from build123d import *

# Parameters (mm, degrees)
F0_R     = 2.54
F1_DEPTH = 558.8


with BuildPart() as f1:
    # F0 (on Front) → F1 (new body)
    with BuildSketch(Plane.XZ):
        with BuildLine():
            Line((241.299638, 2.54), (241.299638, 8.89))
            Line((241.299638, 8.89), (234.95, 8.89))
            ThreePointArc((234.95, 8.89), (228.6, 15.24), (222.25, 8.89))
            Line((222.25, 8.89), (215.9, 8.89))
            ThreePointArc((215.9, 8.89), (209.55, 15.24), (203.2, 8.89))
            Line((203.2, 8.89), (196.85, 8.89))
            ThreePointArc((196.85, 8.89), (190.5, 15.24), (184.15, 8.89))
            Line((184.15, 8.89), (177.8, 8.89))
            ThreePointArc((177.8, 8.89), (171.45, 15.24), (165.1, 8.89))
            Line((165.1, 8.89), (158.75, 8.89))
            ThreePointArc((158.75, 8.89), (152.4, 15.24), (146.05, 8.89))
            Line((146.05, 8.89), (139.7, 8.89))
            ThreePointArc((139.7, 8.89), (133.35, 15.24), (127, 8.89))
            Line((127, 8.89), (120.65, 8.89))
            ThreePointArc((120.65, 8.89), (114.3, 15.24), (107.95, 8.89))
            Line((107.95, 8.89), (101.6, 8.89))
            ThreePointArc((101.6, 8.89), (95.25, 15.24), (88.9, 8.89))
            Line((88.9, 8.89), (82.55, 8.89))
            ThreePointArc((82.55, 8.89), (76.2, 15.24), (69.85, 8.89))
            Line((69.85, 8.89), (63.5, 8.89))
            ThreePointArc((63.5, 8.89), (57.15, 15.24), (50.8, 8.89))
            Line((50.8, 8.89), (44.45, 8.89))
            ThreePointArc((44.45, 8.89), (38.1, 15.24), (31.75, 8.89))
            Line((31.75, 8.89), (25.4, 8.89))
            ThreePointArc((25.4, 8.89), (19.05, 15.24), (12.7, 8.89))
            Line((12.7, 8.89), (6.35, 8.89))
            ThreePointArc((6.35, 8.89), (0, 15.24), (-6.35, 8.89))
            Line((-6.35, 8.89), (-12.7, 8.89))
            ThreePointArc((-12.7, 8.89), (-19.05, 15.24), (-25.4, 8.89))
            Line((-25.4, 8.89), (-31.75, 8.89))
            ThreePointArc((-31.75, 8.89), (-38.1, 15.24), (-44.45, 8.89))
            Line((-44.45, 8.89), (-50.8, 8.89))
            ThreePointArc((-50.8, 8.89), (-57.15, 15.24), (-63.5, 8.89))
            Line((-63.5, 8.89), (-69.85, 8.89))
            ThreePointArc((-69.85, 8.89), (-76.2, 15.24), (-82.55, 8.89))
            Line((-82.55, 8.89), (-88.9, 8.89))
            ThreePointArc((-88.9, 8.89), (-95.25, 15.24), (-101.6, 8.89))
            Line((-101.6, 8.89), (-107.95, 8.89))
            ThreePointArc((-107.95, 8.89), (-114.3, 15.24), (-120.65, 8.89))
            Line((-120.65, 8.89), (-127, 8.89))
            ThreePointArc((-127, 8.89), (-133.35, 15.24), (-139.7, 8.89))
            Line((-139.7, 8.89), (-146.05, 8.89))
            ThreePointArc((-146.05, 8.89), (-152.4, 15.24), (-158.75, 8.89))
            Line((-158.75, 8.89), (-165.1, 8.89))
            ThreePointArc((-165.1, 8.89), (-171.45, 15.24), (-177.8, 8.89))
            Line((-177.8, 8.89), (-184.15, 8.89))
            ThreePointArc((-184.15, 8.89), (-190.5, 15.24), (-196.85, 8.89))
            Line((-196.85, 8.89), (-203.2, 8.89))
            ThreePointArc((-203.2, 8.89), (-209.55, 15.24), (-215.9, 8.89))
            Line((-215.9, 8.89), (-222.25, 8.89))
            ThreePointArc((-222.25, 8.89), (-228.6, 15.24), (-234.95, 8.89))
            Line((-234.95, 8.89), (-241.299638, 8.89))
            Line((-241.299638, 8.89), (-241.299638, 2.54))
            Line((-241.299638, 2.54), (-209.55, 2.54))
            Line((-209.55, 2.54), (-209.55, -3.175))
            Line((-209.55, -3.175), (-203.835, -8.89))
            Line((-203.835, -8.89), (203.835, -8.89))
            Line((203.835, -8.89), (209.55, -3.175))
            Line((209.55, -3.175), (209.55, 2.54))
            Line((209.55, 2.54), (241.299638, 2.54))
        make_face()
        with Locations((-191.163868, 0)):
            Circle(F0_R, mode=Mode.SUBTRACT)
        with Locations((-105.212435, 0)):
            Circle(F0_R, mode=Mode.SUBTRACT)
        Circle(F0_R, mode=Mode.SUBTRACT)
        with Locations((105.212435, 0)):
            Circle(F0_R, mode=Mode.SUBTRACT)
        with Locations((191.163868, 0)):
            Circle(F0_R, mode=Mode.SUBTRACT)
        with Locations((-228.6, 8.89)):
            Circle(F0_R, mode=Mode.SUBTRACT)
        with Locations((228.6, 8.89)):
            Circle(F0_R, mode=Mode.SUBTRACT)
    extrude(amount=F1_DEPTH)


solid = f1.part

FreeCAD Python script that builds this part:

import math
import FreeCAD as App
import Part
import Sketcher

V = App.Vector
Q = App.Units.Quantity

doc = App.newDocument("Part")
body = doc.addObject("PartDesign::Body", "Body")

sketch1 = body.newObject("Sketcher::SketchObject", "Sketch")
sketch1.AttachmentSupport = (doc.getObject("XZ_Plane"), [""])
sketch1.MapMode = "FlatFace"
sketch1.addGeometry([
    Part.LineSegment(V(241.3, 2.5, 0), V(241.3, 8.9, 0)),
    Part.LineSegment(V(241.3, 8.9, 0), V(234.9, 8.9, 0)),
    Part.ArcOfCircle(Part.Circle(V(228.6, 8.9, 0), V(0, 0, 1), 6.3), math.radians(0), math.radians(180)),
    Part.LineSegment(V(222.2, 8.9, 0), V(215.9, 8.9, 0)),
    Part.ArcOfCircle(Part.Circle(V(209.6, 8.9, 0), V(0, 0, 1), 6.3), math.radians(0), math.radians(180)),
    Part.LineSegment(V(203.2, 8.9, 0), V(196.8, 8.9, 0)),
    Part.ArcOfCircle(Part.Circle(V(190.5, 8.9, 0), V(0, 0, 1), 6.3), math.radians(0), math.radians(180)),
    Part.LineSegment(V(184.2, 8.9, 0), V(177.8, 8.9, 0)),
    Part.ArcOfCircle(Part.Circle(V(171.4, 8.9, 0), V(0, 0, 1), 6.3), math.radians(0), math.radians(180)),
    Part.LineSegment(V(165.1, 8.9, 0), V(158.8, 8.9, 0)),
    Part.ArcOfCircle(Part.Circle(V(152.4, 8.9, 0), V(0, 0, 1), 6.3), math.radians(0), math.radians(180)),
    Part.LineSegment(V(146.1, 8.9, 0), V(139.7, 8.9, 0)),
    Part.ArcOfCircle(Part.Circle(V(133.3, 8.9, 0), V(0, 0, 1), 6.3), math.radians(0), math.radians(180)),
    Part.LineSegment(V(127, 8.9, 0), V(120.7, 8.9, 0)),
    Part.ArcOfCircle(Part.Circle(V(114.3, 8.9, 0), V(0, 0, 1), 6.3), math.radians(0), math.radians(180)),
    Part.LineSegment(V(108, 8.9, 0), V(101.6, 8.9, 0)),
    Part.ArcOfCircle(Part.Circle(V(95.2, 8.9, 0), V(0, 0, 1), 6.3), math.radians(0), math.radians(180)),
    Part.LineSegment(V(88.9, 8.9, 0), V(82.5, 8.9, 0)),
    Part.ArcOfCircle(Part.Circle(V(76.2, 8.9, 0), V(0, 0, 1), 6.3), math.radians(0), math.radians(180)),
    Part.LineSegment(V(69.8, 8.9, 0), V(63.5, 8.9, 0)),
    Part.ArcOfCircle(Part.Circle(V(57.1, 8.9, 0), V(0, 0, 1), 6.3), math.radians(0), math.radians(180)),
    Part.LineSegment(V(50.8, 8.9, 0), V(44.5, 8.9, 0)),
    Part.ArcOfCircle(Part.Circle(V(38.1, 8.9, 0), V(0, 0, 1), 6.3), math.radians(0), math.radians(180)),
    Part.LineSegment(V(31.8, 8.9, 0), V(25.4, 8.9, 0)),
    Part.ArcOfCircle(Part.Circle(V(19.1, 8.9, 0), V(0, 0, 1), 6.3), math.radians(0), math.radians(180)),
    Part.LineSegment(V(12.7, 8.9, 0), V(6.3, 8.9, 0)),
    Part.ArcOfCircle(Part.Circle(V(0, 8.9, 0), V(0, 0, 1), 6.3), math.radians(0), math.radians(180)),
    Part.LineSegment(V(-6.3, 8.9, 0), V(-12.7, 8.9, 0)),
    Part.ArcOfCircle(Part.Circle(V(-19.1, 8.9, 0), V(0, 0, 1), 6.3), math.radians(0), math.radians(180)),
    Part.LineSegment(V(-25.4, 8.9, 0), V(-31.8, 8.9, 0)),
    Part.ArcOfCircle(Part.Circle(V(-38.1, 8.9, 0), V(0, 0, 1), 6.3), math.radians(0), math.radians(180)),
    Part.LineSegment(V(-44.5, 8.9, 0), V(-50.8, 8.9, 0)),
    Part.ArcOfCircle(Part.Circle(V(-57.1, 8.9, 0), V(0, 0, 1), 6.3), math.radians(0), math.radians(180)),
    Part.LineSegment(V(-63.5, 8.9, 0), V(-69.8, 8.9, 0)),
    Part.ArcOfCircle(Part.Circle(V(-76.2, 8.9, 0), V(0, 0, 1), 6.3), math.radians(0), math.radians(180)),
    Part.LineSegment(V(-82.5, 8.9, 0), V(-88.9, 8.9, 0)),
    Part.ArcOfCircle(Part.Circle(V(-95.2, 8.9, 0), V(0, 0, 1), 6.3), math.radians(0), math.radians(180)),
    Part.LineSegment(V(-101.6, 8.9, 0), V(-108, 8.9, 0)),
    Part.ArcOfCircle(Part.Circle(V(-114.3, 8.9, 0), V(0, 0, 1), 6.3), math.radians(0), math.radians(180)),
    Part.LineSegment(V(-120.7, 8.9, 0), V(-127, 8.9, 0)),
    Part.ArcOfCircle(Part.Circle(V(-133.3, 8.9, 0), V(0, 0, 1), 6.3), math.radians(0), math.radians(180)),
    Part.LineSegment(V(-139.7, 8.9, 0), V(-146.1, 8.9, 0)),
    Part.ArcOfCircle(Part.Circle(V(-152.4, 8.9, 0), V(0, 0, 1), 6.3), math.radians(0), math.radians(180)),
    Part.LineSegment(V(-158.8, 8.9, 0), V(-165.1, 8.9, 0)),
    Part.ArcOfCircle(Part.Circle(V(-171.4, 8.9, 0), V(0, 0, 1), 6.3), math.radians(0), math.radians(180)),
    Part.LineSegment(V(-177.8, 8.9, 0), V(-184.2, 8.9, 0)),
    Part.ArcOfCircle(Part.Circle(V(-190.5, 8.9, 0), V(0, 0, 1), 6.3), math.radians(0), math.radians(180)),
    Part.LineSegment(V(-196.8, 8.9, 0), V(-203.2, 8.9, 0)),
    Part.ArcOfCircle(Part.Circle(V(-209.6, 8.9, 0), V(0, 0, 1), 6.3), math.radians(0), math.radians(180)),
    Part.LineSegment(V(-215.9, 8.9, 0), V(-222.2, 8.9, 0)),
    Part.ArcOfCircle(Part.Circle(V(-228.6, 8.9, 0), V(0, 0, 1), 6.3), math.radians(0), math.radians(180)),
    Part.LineSegment(V(-234.9, 8.9, 0), V(-241.3, 8.9, 0)),
    Part.LineSegment(V(-241.3, 8.9, 0), V(-241.3, 2.5, 0)),
    Part.LineSegment(V(-241.3, 2.5, 0), V(-209.6, 2.5, 0)),
    Part.LineSegment(V(-209.6, 2.5, 0), V(-209.6, -3.2, 0)),
    Part.LineSegment(V(-209.6, -3.2, 0), V(-203.8, -8.9, 0)),
    Part.LineSegment(V(-203.8, -8.9, 0), V(203.8, -8.9, 0)),
    Part.LineSegment(V(203.8, -8.9, 0), V(209.6, -3.2, 0)),
    Part.LineSegment(V(209.6, -3.2, 0), V(209.6, 2.5, 0)),
    Part.LineSegment(V(209.6, 2.5, 0), V(241.3, 2.5, 0)),
    Part.Circle(V(-191.2, 0, 0), V(0, 0, 1), 2.5),
    Part.Circle(V(-105.2, 0, 0), V(0, 0, 1), 2.5),
    Part.Circle(V(0, 0, 0), V(0, 0, 1), 2.5),
    Part.Circle(V(105.2, 0, 0), V(0, 0, 1), 2.5),
    Part.Circle(V(191.2, 0, 0), V(0, 0, 1), 2.5),
    Part.Circle(V(-228.6, 8.9, 0), V(0, 0, 1), 2.5),
    Part.Circle(V(228.6, 8.9, 0), V(0, 0, 1), 2.5),
], False)
sketch1.addConstraint([
    Sketcher.Constraint("Coincident", 0, 2, 1, 1),
    Sketcher.Constraint("Coincident", 1, 2, 2, 1),
    Sketcher.Constraint("Coincident", 2, 2, 3, 1),
    Sketcher.Constraint("Coincident", 3, 2, 4, 1),
    Sketcher.Constraint("Coincident", 4, 2, 5, 1),
    Sketcher.Constraint("Coincident", 5, 2, 6, 1),
    Sketcher.Constraint("Coincident", 6, 2, 7, 1),
    Sketcher.Constraint("Coincident", 7, 2, 8, 1),
    Sketcher.Constraint("Coincident", 8, 2, 9, 1),
    Sketcher.Constraint("Coincident", 9, 2, 10, 1),
    Sketcher.Constraint("Coincident", 10, 2, 11, 1),
    Sketcher.Constraint("Coincident", 11, 2, 12, 1),
    Sketcher.Constraint("Coincident", 12, 2, 13, 1),
    Sketcher.Constraint("Coincident", 13, 2, 14, 1),
    Sketcher.Constraint("Coincident", 14, 2, 15, 1),
    Sketcher.Constraint("Coincident", 15, 2, 16, 1),
    Sketcher.Constraint("Coincident", 16, 2, 17, 1),
    Sketcher.Constraint("Coincident", 17, 2, 18, 1),
    Sketcher.Constraint("Coincident", 18, 2, 19, 1),
    Sketcher.Constraint("Coincident", 19, 2, 20, 1),
    Sketcher.Constraint("Coincident", 20, 2, 21, 1),
    Sketcher.Constraint("Coincident", 21, 2, 22, 1),
    Sketcher.Constraint("Coincident", 22, 2, 23, 1),
    Sketcher.Constraint("Coincident", 23, 2, 24, 1),
    Sketcher.Constraint("Coincident", 24, 2, 25, 1),
    Sketcher.Constraint("Coincident", 25, 2, 26, 1),
    Sketcher.Constraint("Coincident", 26, 2, 27, 1),
    Sketcher.Constraint("Coincident", 27, 2, 28, 1),
    Sketcher.Constraint("Coincident", 28, 2, 29, 1),
    Sketcher.Constraint("Coincident", 29, 2, 30, 1),
    Sketcher.Constraint("Coincident", 30, 2, 31, 1),
    Sketcher.Constraint("Coincident", 31, 2, 32, 1),
    Sketcher.Constraint("Coincident", 32, 2, 33, 1),
    Sketcher.Constraint("Coincident", 33, 2, 34, 1),
    Sketcher.Constraint("Coincident", 34, 2, 35, 1),
    Sketcher.Constraint("Coincident", 35, 2, 36, 1),
    Sketcher.Constraint("Coincident", 36, 2, 37, 1),
    Sketcher.Constraint("Coincident", 37, 2, 38, 1),
    Sketcher.Constraint("Coincident", 38, 2, 39, 1),
    Sketcher.Constraint("Coincident", 39, 2, 40, 1),
    Sketcher.Constraint("Coincident", 40, 2, 41, 1),
    Sketcher.Constraint("Coincident", 41, 2, 42, 1),
    Sketcher.Constraint("Coincident", 42, 2, 43, 1),
    Sketcher.Constraint("Coincident", 43, 2, 44, 1),
    Sketcher.Constraint("Coincident", 44, 2, 45, 1),
    Sketcher.Constraint("Coincident", 45, 2, 46, 1),
    Sketcher.Constraint("Coincident", 46, 2, 47, 1),
    Sketcher.Constraint("Coincident", 47, 2, 48, 1),
    Sketcher.Constraint("Coincident", 48, 2, 49, 1),
    Sketcher.Constraint("Coincident", 49, 2, 50, 1),
    Sketcher.Constraint("Coincident", 50, 2, 51, 1),
    Sketcher.Constraint("Coincident", 51, 2, 52, 1),
    Sketcher.Constraint("Coincident", 52, 2, 53, 1),
    Sketcher.Constraint("Coincident", 53, 2, 54, 1),
    Sketcher.Constraint("Coincident", 54, 2, 55, 1),
    Sketcher.Constraint("Coincident", 55, 2, 56, 1),
    Sketcher.Constraint("Coincident", 56, 2, 57, 1),
    Sketcher.Constraint("Coincident", 57, 2, 58, 1),
    Sketcher.Constraint("Coincident", 58, 2, 59, 1),
    Sketcher.Constraint("Coincident", 59, 2, 0, 1),
    Sketcher.Constraint("Vertical", 0),
    Sketcher.Constraint("Horizontal", 1),
    Sketcher.Constraint("Horizontal", 3),
    Sketcher.Constraint("Horizontal", 5),
    Sketcher.Constraint("Horizontal", 7),
    Sketcher.Constraint("Horizontal", 9),
    Sketcher.Constraint("Horizontal", 11),
    Sketcher.Constraint("Horizontal", 13),
    Sketcher.Constraint("Horizontal", 15),
    Sketcher.Constraint("Horizontal", 17),
    Sketcher.Constraint("Horizontal", 19),
    Sketcher.Constraint("Horizontal", 21),
    Sketcher.Constraint("Horizontal", 23),
    Sketcher.Constraint("Horizontal", 25),
    Sketcher.Constraint("Horizontal", 27),
    Sketcher.Constraint("Horizontal", 29),
    Sketcher.Constraint("Horizontal", 31),
    Sketcher.Constraint("Horizontal", 33),
    Sketcher.Constraint("Horizontal", 35),
    Sketcher.Constraint("Horizontal", 37),
    Sketcher.Constraint("Horizontal", 39),
    Sketcher.Constraint("Horizontal", 41),
    Sketcher.Constraint("Horizontal", 43),
    Sketcher.Constraint("Horizontal", 45),
    Sketcher.Constraint("Horizontal", 47),
    Sketcher.Constraint("Horizontal", 49),
    Sketcher.Constraint("Horizontal", 51),
    Sketcher.Constraint("Vertical", 52),
    Sketcher.Constraint("Horizontal", 53),
    Sketcher.Constraint("Vertical", 54),
    Sketcher.Constraint("Horizontal", 56),
    Sketcher.Constraint("Vertical", 58),
    Sketcher.Constraint("Horizontal", 59),
    Sketcher.Constraint("Coincident", 62, 3, -1, 1),
    Sketcher.Constraint("Coincident", 65, 3, 50, 3),
    Sketcher.Constraint("Coincident", 66, 3, 2, 3),
    Sketcher.Constraint("Equal", 2, 4),
    Sketcher.Constraint("Equal", 4, 6),
    Sketcher.Constraint("Equal", 6, 8),
    Sketcher.Constraint("Equal", 8, 10),
    Sketcher.Constraint("Equal", 10, 12),
    Sketcher.Constraint("Equal", 12, 14),
    Sketcher.Constraint("Equal", 14, 16),
    Sketcher.Constraint("Equal", 16, 18),
    Sketcher.Constraint("Equal", 18, 20),
    Sketcher.Constraint("Equal", 20, 22),
    Sketcher.Constraint("Equal", 22, 24),
    Sketcher.Constraint("Equal", 24, 26),
    Sketcher.Constraint("Equal", 26, 28),
    Sketcher.Constraint("Equal", 28, 30),
    Sketcher.Constraint("Equal", 30, 32),
    Sketcher.Constraint("Equal", 32, 34),
    Sketcher.Constraint("Equal", 34, 36),
    Sketcher.Constraint("Equal", 36, 38),
    Sketcher.Constraint("Equal", 38, 40),
    Sketcher.Constraint("Equal", 40, 42),
    Sketcher.Constraint("Equal", 42, 44),
    Sketcher.Constraint("Equal", 44, 46),
    Sketcher.Constraint("Equal", 46, 48),
    Sketcher.Constraint("Equal", 48, 50),
    Sketcher.Constraint("Equal", 60, 61),
    Sketcher.Constraint("Equal", 61, 62),
    Sketcher.Constraint("Equal", 62, 63),
    Sketcher.Constraint("Equal", 63, 64),
    Sketcher.Constraint("Equal", 64, 65),
    Sketcher.Constraint("Equal", 65, 66),
    Sketcher.Constraint("Symmetric", 61, 3, 63, 3, -1, 1),
    Sketcher.Constraint("Symmetric", 60, 3, 64, 3, -1, 1),
    Sketcher.Constraint("Symmetric", 24, 3, 28, 3, -2),
    Sketcher.Constraint("Symmetric", 22, 3, 30, 3, -2),
    Sketcher.Constraint("Symmetric", 20, 3, 32, 3, -2),
    Sketcher.Constraint("Symmetric", 18, 3, 34, 3, -2),
    Sketcher.Constraint("Symmetric", 16, 3, 36, 3, -2),
    Sketcher.Constraint("Symmetric", 14, 3, 38, 3, -2),
    Sketcher.Constraint("Symmetric", 12, 3, 40, 3, -2),
    Sketcher.Constraint("Symmetric", 10, 3, 42, 3, -2),
    Sketcher.Constraint("Symmetric", 8, 3, 44, 3, -2),
    Sketcher.Constraint("Symmetric", 6, 3, 46, 3, -2),
    Sketcher.Constraint("Symmetric", 4, 3, 48, 3, -2),
    Sketcher.Constraint("Symmetric", 2, 3, 50, 3, -2),
    Sketcher.Constraint("Symmetric", 25, 2, 26, 2, -2),
    Sketcher.Constraint("Symmetric", 0, 2, 51, 2, -2),
    Sketcher.Constraint("Symmetric", 54, 2, 57, 2, -2),
    Sketcher.Constraint("PointOnObject", 60, 3, -1),
    Sketcher.Constraint("PointOnObject", 61, 3, -1),
    Sketcher.Constraint("Perpendicular", 55, 57),
    Sketcher.Constraint("Horizontal", 2, 3, 4, 3),
    Sketcher.Constraint("Horizontal", 4, 3, 6, 3),
    Sketcher.Constraint("Horizontal", 6, 3, 8, 3),
    Sketcher.Constraint("Horizontal", 8, 3, 10, 3),
    Sketcher.Constraint("Horizontal", 10, 3, 12, 3),
    Sketcher.Constraint("Horizontal", 12, 3, 14, 3),
    Sketcher.Constraint("Horizontal", 14, 3, 16, 3),
    Sketcher.Constraint("Horizontal", 16, 3, 18, 3),
    Sketcher.Constraint("Horizontal", 18, 3, 20, 3),
    Sketcher.Constraint("Horizontal", 20, 3, 22, 3),
    Sketcher.Constraint("Horizontal", 22, 3, 24, 3),
    Sketcher.Constraint("Horizontal", 24, 3, 26, 3),
    Sketcher.Constraint("Horizontal", 66, 3, 0, 2),
    Sketcher.Constraint("Horizontal", 1, 2, 2, 2),
    Sketcher.Constraint("Horizontal", 3, 2, 4, 2),
    Sketcher.Constraint("Horizontal", 5, 2, 6, 2),
    Sketcher.Constraint("Horizontal", 7, 2, 8, 2),
    Sketcher.Constraint("Horizontal", 9, 2, 10, 2),
    Sketcher.Constraint("Horizontal", 11, 2, 12, 2),
    Sketcher.Constraint("Horizontal", 13, 2, 14, 2),
    Sketcher.Constraint("Horizontal", 15, 2, 16, 2),
    Sketcher.Constraint("Horizontal", 17, 2, 18, 2),
    Sketcher.Constraint("Horizontal", 19, 2, 20, 2),
    Sketcher.Constraint("Horizontal", 21, 2, 22, 2),
    Sketcher.Constraint("Horizontal", 23, 2, 24, 2),
    Sketcher.Constraint("Horizontal", 27, 2, 28, 2),
    Sketcher.Constraint("Horizontal", 29, 2, 30, 2),
    Sketcher.Constraint("Horizontal", 31, 2, 32, 2),
    Sketcher.Constraint("Horizontal", 33, 2, 34, 2),
    Sketcher.Constraint("Horizontal", 35, 2, 36, 2),
    Sketcher.Constraint("Horizontal", 37, 2, 38, 2),
    Sketcher.Constraint("Horizontal", 39, 2, 40, 2),
    Sketcher.Constraint("Horizontal", 41, 2, 42, 2),
    Sketcher.Constraint("Horizontal", 43, 2, 44, 2),
    Sketcher.Constraint("Horizontal", 45, 2, 46, 2),
    Sketcher.Constraint("Horizontal", 47, 2, 48, 2),
    Sketcher.Constraint("Horizontal", 53, 2, 58, 2),
    Sketcher.Constraint("Vertical", 48, 3, 53, 2),
    Sketcher.Constraint("Equal", 3, 5),
    Sketcher.Constraint("Equal", 5, 7),
    Sketcher.Constraint("Equal", 7, 9),
    Sketcher.Constraint("Equal", 9, 11),
    Sketcher.Constraint("Equal", 11, 13),
    Sketcher.Constraint("Equal", 13, 15),
    Sketcher.Constraint("Equal", 15, 17),
    Sketcher.Constraint("Equal", 17, 19),
    Sketcher.Constraint("Equal", 19, 21),
    Sketcher.Constraint("Equal", 21, 23),
    Sketcher.Constraint("Equal", 23, 25),
    Sketcher.Constraint("Equal", 49, 0),
    Sketcher.Constraint("Equal", 55, 57),
    Sketcher.Constraint("Diameter", 60, Q("0.2 in")),
    Sketcher.Constraint("Radius", 2, Q("0.25 in")),
    Sketcher.Constraint("DistanceX", -1, 1, 2, 3, Q("9 in")),
    Sketcher.Constraint("DistanceX", 56, 1, 56, 2, Q("16.05 in")),
    Sketcher.Constraint("DistanceY", -1, 1, 52, 2, Q("0.1 in")),
    Sketcher.Constraint("DistanceY", 54, 2, 54, 1, Q("0.225 in")),
    Sketcher.Constraint("DistanceX", 1, 2, 1, 1, Q("6.349638 mm")),
    Sketcher.Constraint("DistanceX", 60, 3, -1, 1, Q("191.163868 mm")),
    Sketcher.Constraint("DistanceX", 61, 3, -1, 1, Q("105.212435 mm")),
])
pad1 = body.newObject("PartDesign::Pad", "Pad")
pad1.Profile = sketch1
pad1.Length = Q("22 in")

doc.recompute()
